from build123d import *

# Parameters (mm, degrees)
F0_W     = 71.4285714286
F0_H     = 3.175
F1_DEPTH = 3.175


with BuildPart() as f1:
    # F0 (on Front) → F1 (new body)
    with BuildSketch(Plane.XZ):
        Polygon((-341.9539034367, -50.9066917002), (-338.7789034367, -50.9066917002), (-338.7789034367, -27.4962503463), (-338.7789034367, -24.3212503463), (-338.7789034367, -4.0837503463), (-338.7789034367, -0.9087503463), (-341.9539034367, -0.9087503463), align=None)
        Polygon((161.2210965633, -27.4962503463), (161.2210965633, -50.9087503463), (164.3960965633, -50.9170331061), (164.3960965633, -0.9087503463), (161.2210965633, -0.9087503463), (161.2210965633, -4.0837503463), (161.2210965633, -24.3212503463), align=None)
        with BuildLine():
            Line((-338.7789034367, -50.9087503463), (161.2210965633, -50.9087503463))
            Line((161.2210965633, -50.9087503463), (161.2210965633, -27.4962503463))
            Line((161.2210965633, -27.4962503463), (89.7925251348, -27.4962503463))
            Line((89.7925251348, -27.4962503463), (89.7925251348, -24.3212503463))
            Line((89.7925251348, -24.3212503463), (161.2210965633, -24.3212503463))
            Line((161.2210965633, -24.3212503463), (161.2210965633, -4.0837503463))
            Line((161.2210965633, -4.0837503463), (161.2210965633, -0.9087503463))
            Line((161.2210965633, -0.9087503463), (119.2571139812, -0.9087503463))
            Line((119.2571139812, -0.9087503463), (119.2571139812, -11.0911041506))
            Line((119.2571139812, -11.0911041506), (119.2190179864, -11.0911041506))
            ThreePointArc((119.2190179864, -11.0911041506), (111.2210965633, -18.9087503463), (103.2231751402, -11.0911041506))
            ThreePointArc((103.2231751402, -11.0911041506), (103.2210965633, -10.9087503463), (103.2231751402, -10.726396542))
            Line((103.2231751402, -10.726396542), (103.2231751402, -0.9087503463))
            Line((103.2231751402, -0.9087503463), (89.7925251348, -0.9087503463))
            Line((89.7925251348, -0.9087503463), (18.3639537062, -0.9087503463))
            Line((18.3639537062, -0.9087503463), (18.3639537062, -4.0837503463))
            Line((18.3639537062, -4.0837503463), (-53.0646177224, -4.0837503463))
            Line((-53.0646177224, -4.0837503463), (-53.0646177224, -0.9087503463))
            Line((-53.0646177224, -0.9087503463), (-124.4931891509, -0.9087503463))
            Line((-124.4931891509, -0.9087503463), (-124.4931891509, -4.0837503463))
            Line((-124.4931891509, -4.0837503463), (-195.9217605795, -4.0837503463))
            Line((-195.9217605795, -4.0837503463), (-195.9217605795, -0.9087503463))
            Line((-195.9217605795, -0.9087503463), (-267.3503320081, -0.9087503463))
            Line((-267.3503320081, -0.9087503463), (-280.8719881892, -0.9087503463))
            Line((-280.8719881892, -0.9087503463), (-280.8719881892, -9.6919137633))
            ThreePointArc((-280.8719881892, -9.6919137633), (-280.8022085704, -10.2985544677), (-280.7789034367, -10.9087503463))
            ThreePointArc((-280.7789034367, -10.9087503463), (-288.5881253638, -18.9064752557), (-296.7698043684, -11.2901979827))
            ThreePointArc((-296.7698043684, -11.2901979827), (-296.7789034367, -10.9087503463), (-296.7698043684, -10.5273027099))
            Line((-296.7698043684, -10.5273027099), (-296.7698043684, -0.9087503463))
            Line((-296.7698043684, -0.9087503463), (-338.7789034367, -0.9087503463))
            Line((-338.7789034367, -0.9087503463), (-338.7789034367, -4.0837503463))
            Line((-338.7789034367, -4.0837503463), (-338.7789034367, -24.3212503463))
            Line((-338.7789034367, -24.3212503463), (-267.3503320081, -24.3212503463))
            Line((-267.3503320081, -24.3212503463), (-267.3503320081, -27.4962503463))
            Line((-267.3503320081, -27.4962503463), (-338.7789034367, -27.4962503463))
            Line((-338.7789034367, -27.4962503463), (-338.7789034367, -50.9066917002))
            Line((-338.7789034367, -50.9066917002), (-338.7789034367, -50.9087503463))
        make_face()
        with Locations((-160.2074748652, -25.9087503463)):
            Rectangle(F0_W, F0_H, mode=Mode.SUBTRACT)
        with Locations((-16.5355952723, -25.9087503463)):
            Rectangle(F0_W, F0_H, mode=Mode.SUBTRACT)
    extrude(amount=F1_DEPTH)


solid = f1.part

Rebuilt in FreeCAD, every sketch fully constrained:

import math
import FreeCAD as App
import Part
import Sketcher
from FreeCAD import Vector
Q = App.Units.Quantity

doc = App.newDocument("Part")
body = doc.addObject("PartDesign::Body", "Body")

# Sketch on XZ plane
sketch1 = doc.addObject("Sketcher::SketchObject", "Sketch")
body.addObject(sketch1)
sketch1.AttachmentSupport = (doc.XZ_Plane, [""])
sketch1.MapMode = "FlatFace"
sketch1.addGeometry([
    Part.LineSegment(Vector(-341.9539, -50.9067, 0), Vector(-338.7789, -50.9067, 0)),  # 0
    Part.LineSegment(Vector(-338.7789, -50.9067, 0), Vector(-338.7789, -50.9088, 0)),  # 1
    Part.LineSegment(Vector(-338.7789, -50.9088, 0), Vector(161.2211, -50.9088, 0)),  # 2
    Part.LineSegment(Vector(161.2211, -50.9088, 0), Vector(164.3961, -50.917, 0)),  # 3
    Part.LineSegment(Vector(164.3961, -50.917, 0), Vector(164.3961, -0.9088, 0)),  # 4
    Part.LineSegment(Vector(164.3961, -0.9088, 0), Vector(119.2571, -0.9088, 0)),  # 5
    Part.LineSegment(Vector(119.2571, -0.9088, 0), Vector(119.2571, -11.0911, 0)),  # 6
    Part.LineSegment(Vector(119.2571, -11.0911, 0), Vector(119.219, -11.0911, 0)),  # 7
    Part.ArcOfCircle(Part.Circle(Vector(111.2211, -10.9088, 0), Vector(0, 0, 1), 8), math.radians(-179), math.radians(-1)),  # 8
    Part.ArcOfCircle(Part.Circle(Vector(111.2211, -10.9088, 0), Vector(0, 0, 1), 8), math.radians(178.69), math.radians(181.31)),  # 9
    Part.LineSegment(Vector(103.2232, -10.7264, 0), Vector(103.2232, -0.9088, 0)),  # 10
    Part.LineSegment(Vector(103.2232, -0.9088, 0), Vector(18.364, -0.9088, 0)),  # 11
    Part.LineSegment(Vector(18.364, -0.9088, 0), Vector(18.364, -4.0838, 0)),  # 12
    Part.LineSegment(Vector(18.364, -4.0838, 0), Vector(-53.0646, -4.0838, 0)),  # 13
    Part.LineSegment(Vector(-53.0646, -4.0838, 0), Vector(-53.0646, -0.9088, 0)),  # 14
    Part.LineSegment(Vector(-53.0646, -0.9088, 0), Vector(-124.4932, -0.9088, 0)),  # 15
    Part.LineSegment(Vector(-124.4932, -0.9088, 0), Vector(-124.4932, -4.0838, 0)),  # 16
    Part.LineSegment(Vector(-124.4932, -4.0838, 0), Vector(-195.9218, -4.0838, 0)),  # 17
    Part.LineSegment(Vector(-195.9218, -4.0838, 0), Vector(-195.9218, -0.9088, 0)),  # 18
    Part.LineSegment(Vector(-195.9218, -0.9088, 0), Vector(-280.872, -0.9088, 0)),  # 19
    Part.LineSegment(Vector(-280.872, -0.9088, 0), Vector(-280.872, -9.6919, 0)),  # 20
    Part.ArcOfCircle(Part.Circle(Vector(-288.7789, -10.9088, 0), Vector(0, 0, 1), 8), math.radians(0), math.radians(8.75)),  # 21
    Part.ArcOfCircle(Part.Circle(Vector(-288.7789, -10.9088, 0), Vector(0, 0, 1), 8), math.radians(-177), math.radians(0)),  # 22
    Part.ArcOfCircle(Part.Circle(Vector(-288.7789, -10.9088, 0), Vector(0, 0, 1), 8), math.radians(177.27), math.radians(182.73)),  # 23
    Part.LineSegment(Vector(-296.7698, -10.5273, 0), Vector(-296.7698, -0.9088, 0)),  # 24
    Part.LineSegment(Vector(-296.7698, -0.9088, 0), Vector(-341.9539, -0.9088, 0)),  # 25
    Part.LineSegment(Vector(-341.9539, -0.9088, 0), Vector(-341.9539, -50.9067, 0)),  # 26
    Part.LineSegment(Vector(-338.7789, -27.4963, 0), Vector(-338.7789, -24.3213, 0)),  # 27
    Part.LineSegment(Vector(-338.7789, -24.3213, 0), Vector(-267.3503, -24.3213, 0)),  # 28
    Part.LineSegment(Vector(-267.3503, -24.3213, 0), Vector(-267.3503, -27.4963, 0)),  # 29
    Part.LineSegment(Vector(-267.3503, -27.4963, 0), Vector(-338.7789, -27.4963, 0)),  # 30
    Part.LineSegment(Vector(-124.4932, -27.4963, 0), Vector(-195.9218, -27.4963, 0)),  # 31
    Part.LineSegment(Vector(-195.9218, -27.4963, 0), Vector(-195.9218, -24.3213, 0)),  # 32
    Part.LineSegment(Vector(-195.9218, -24.3213, 0), Vector(-124.4932, -24.3213, 0)),  # 33
    Part.LineSegment(Vector(-124.4932, -24.3213, 0), Vector(-124.4932, -27.4963, 0)),  # 34
    Part.LineSegment(Vector(19.1787, -27.4963, 0), Vector(-52.2499, -27.4963, 0)),  # 35
    Part.LineSegment(Vector(-52.2499, -27.4963, 0), Vector(-52.2499, -24.3213, 0)),  # 36
    Part.LineSegment(Vector(-52.2499, -24.3213, 0), Vector(19.1787, -24.3213, 0)),  # 37
    Part.LineSegment(Vector(19.1787, -24.3213, 0), Vector(19.1787, -27.4963, 0)),  # 38
    Part.LineSegment(Vector(161.2211, -27.4963, 0), Vector(89.7925, -27.4963, 0)),  # 39
    Part.LineSegment(Vector(89.7925, -27.4963, 0), Vector(89.7925, -24.3213, 0)),  # 40
    Part.LineSegment(Vector(89.7925, -24.3213, 0), Vector(161.2211, -24.3213, 0)),  # 41
    Part.LineSegment(Vector(161.2211, -24.3213, 0), Vector(161.2211, -27.4963, 0)),  # 42
], False)
sketch1.addConstraint([
    Sketcher.Constraint("Coincident", 0, 2, 1, 1),
    Sketcher.Constraint("Coincident", 1, 2, 2, 1),
    Sketcher.Constraint("Coincident", 2, 2, 3, 1),
    Sketcher.Constraint("Coincident", 3, 2, 4, 1),
    Sketcher.Constraint("Coincident", 4, 2, 5, 1),
    Sketcher.Constraint("Coincident", 5, 2, 6, 1),
    Sketcher.Constraint("Coincident", 6, 2, 7, 1),
    Sketcher.Constraint("Coincident", 7, 2, 8, 2),
    Sketcher.Constraint("Tangent", 8, 1, 9, 2),
    Sketcher.Constraint("Coincident", 9, 1, 10, 1),
    Sketcher.Constraint("Coincident", 10, 2, 11, 1),
    Sketcher.Constraint("Coincident", 11, 2, 12, 1),
    Sketcher.Constraint("Coincident", 12, 2, 13, 1),
    Sketcher.Constraint("Coincident", 13, 2, 14, 1),
    Sketcher.Constraint("Coincident", 14, 2, 15, 1),
    Sketcher.Constraint("Coincident", 15, 2, 16, 1),
    Sketcher.Constraint("Coincident", 16, 2, 17, 1),
    Sketcher.Constraint("Coincident", 17, 2, 18, 1),
    Sketcher.Constraint("Coincident", 18, 2, 19, 1),
    Sketcher.Constraint("Coincident", 19, 2, 20, 1),
    Sketcher.Constraint("Coincident", 20, 2, 21, 2),
    Sketcher.Constraint("Tangent", 21, 1, 22, 2),
    Sketcher.Constraint("Tangent", 22, 1, 23, 2),
    Sketcher.Constraint("Coincident", 23, 1, 24, 1),
    Sketcher.Constraint("Coincident", 24, 2, 25, 1),
    Sketcher.Constraint("Coincident", 25, 2, 26, 1),
    Sketcher.Constraint("Coincident", 26, 2, 0, 1),
    Sketcher.Constraint("Coincident", 27, 2, 28, 1),
    Sketcher.Constraint("Coincident", 28, 2, 29, 1),
    Sketcher.Constraint("Coincident", 29, 2, 30, 1),
    Sketcher.Constraint("Coincident", 30, 2, 27, 1),
    Sketcher.Constraint("Coincident", 31, 2, 32, 1),
    Sketcher.Constraint("Coincident", 32, 2, 33, 1),
    Sketcher.Constraint("Coincident", 33, 2, 34, 1),
    Sketcher.Constraint("Coincident", 34, 2, 31, 1),
    Sketcher.Constraint("Coincident", 35, 2, 36, 1),
    Sketcher.Constraint("Coincident", 36, 2, 37, 1),
    Sketcher.Constraint("Coincident", 37, 2, 38, 1),
    Sketcher.Constraint("Coincident", 38, 2, 35, 1),
    Sketcher.Constraint("Coincident", 39, 2, 40, 1),
    Sketcher.Constraint("Coincident", 40, 2, 41, 1),
    Sketcher.Constraint("Coincident", 41, 2, 42, 1),
    Sketcher.Constraint("Coincident", 42, 2, 39, 1),
    Sketcher.Constraint("Horizontal", 0),
    Sketcher.Constraint("Vertical", 1),
    Sketcher.Constraint("Horizontal", 2),
    Sketcher.Constraint("Vertical", 4),
    Sketcher.Constraint("Horizontal", 5),
    Sketcher.Constraint("Vertical", 6),
    Sketcher.Constraint("Horizontal", 7),
    Sketcher.Constraint("Vertical", 10),
    Sketcher.Constraint("Horizontal", 11),
    Sketcher.Constraint("Vertical", 12),
    Sketcher.Constraint("Horizontal", 13),
    Sketcher.Constraint("Vertical", 14),
    Sketcher.Constraint("Horizontal", 15),
    Sketcher.Constraint("Vertical", 16),
    Sketcher.Constraint("Horizontal", 17),
    Sketcher.Constraint("Vertical", 18),
    Sketcher.Constraint("Horizontal", 19),
    Sketcher.Constraint("Vertical", 20),
    Sketcher.Constraint("Vertical", 24),
    Sketcher.Constraint("Horizontal", 25),
    Sketcher.Constraint("Vertical", 26),
    Sketcher.Constraint("Vertical", 27),
    Sketcher.Constraint("Horizontal", 28),
    Sketcher.Constraint("Vertical", 29),
    Sketcher.Constraint("Horizontal", 30),
    Sketcher.Constraint("Horizontal", 31),
    Sketcher.Constraint("Vertical", 32),
    Sketcher.Constraint("Horizontal", 33),
    Sketcher.Constraint("Vertical", 34),
    Sketcher.Constraint("Horizontal", 35),
    Sketcher.Constraint("Vertical", 36),
    Sketcher.Constraint("Horizontal", 37),
    Sketcher.Constraint("Vertical", 38),
    Sketcher.Constraint("Horizontal", 39),
    Sketcher.Constraint("Vertical", 40),
    Sketcher.Constraint("Horizontal", 41),
    Sketcher.Constraint("Vertical", 42),
    Sketcher.Constraint("Coincident", 23, 3, 21, 3),
    Sketcher.Constraint("Equal", 8, 9),
    Sketcher.Constraint("Equal", 9, 21),
    Sketcher.Constraint("Horizontal", 9, 3, 21, 3),
    Sketcher.Constraint("Horizontal", 7, 2, 8, 1),
    Sketcher.Constraint("Horizontal", 5, 2, 10, 2),
    Sketcher.Constraint("Horizontal", 11, 2, 14, 2),
    Sketcher.Constraint("Horizontal", 13, 2, 16, 2),
    Sketcher.Constraint("Horizontal", 15, 2, 18, 2),
    Sketcher.Constraint("Horizontal", 23, 3, 21, 1),
    Sketcher.Constraint("Horizontal", 19, 2, 24, 2),
    Sketcher.Constraint("Horizontal", 30, 2, 31, 2),
    Sketcher.Constraint("Horizontal", 28, 2, 32, 2),
    Sketcher.Constraint("Horizontal", 34, 2, 35, 2),
    Sketcher.Constraint("Horizontal", 33, 2, 36, 2),
    Sketcher.Constraint("Horizontal", 38, 2, 39, 2),
    Sketcher.Constraint("Horizontal", 37, 2, 40, 2),
    Sketcher.Constraint("Vertical", 8, 1, 9, 1),
    Sketcher.Constraint("Vertical", 22, 1, 23, 1),
    Sketcher.Constraint("Vertical", 1, 2, 27, 2),
    Sketcher.Constraint("Vertical", 18, 2, 31, 2),
    Sketcher.Constraint("Vertical", 16, 2, 33, 2),
    Sketcher.Constraint("Vertical", 2, 2, 41, 2),
    Sketcher.Constraint("Equal", 13, 15),
    Sketcher.Constraint("Equal", 15, 17),
    Sketcher.Constraint("Equal", 17, 28),
    Sketcher.Constraint("Equal", 33, 35),
    Sketcher.Constraint("Equal", 37, 39),
    Sketcher.Constraint("Equal", 0, 12),
    Sketcher.Constraint("Equal", 18, 27),
    Sketcher.Constraint("Radius", 8, Q("8 mm")),
    Sketcher.Constraint("DistanceX", 2, 1, 2, 2, Q("500 mm")),
    Sketcher.Constraint("DistanceX", 21, 3, 8, 3, Q("400 mm")),
    Sketcher.Constraint("DistanceX", 0, 2, 23, 3, Q("50 mm")),
    Sketcher.Constraint("DistanceY", 1, 2, 23, 3, Q("40 mm")),
    Sketcher.Constraint("DistanceY", 2, 2, 4, 2, Q("50 mm")),
    Sketcher.Constraint("DistanceX", 0, 1, 0, 2, Q("3.175 mm")),
    Sketcher.Constraint("DistanceX", 25, 2, 25, 1, Q("45.184099 mm")),
    Sketcher.Constraint("DistanceX", 2, 2, 3, 2, Q("3.175 mm")),
    Sketcher.Constraint("DistanceX", 11, 2, 11, 1, Q("84.859221 mm")),
    Sketcher.Constraint("DistanceX", 13, 2, 13, 1, Q("71.428571 mm")),
    Sketcher.Constraint("DistanceY", 1, 2, 1, 1, Q("0.002059 mm")),
    Sketcher.Constraint("DistanceY", 27, 2, 25, 2, Q("23.4125 mm")),
    Sketcher.Constraint("DistanceX", 5, 2, 5, 1, Q("45.138983 mm")),
    Sketcher.Constraint("DistanceX", 7, 2, 7, 1, Q("0.038096 mm")),
    Sketcher.Constraint("DistanceX", 19, 2, 19, 1, Q("84.950228 mm")),
    Sketcher.Constraint("DistanceY", 4, 1, 4, 2, Q("50.008283 mm")),
    Sketcher.Constraint("DistanceY", 8, 3, -1, 1, Q("10.90875 mm")),
    Sketcher.Constraint("DistanceX", 15, 2, -1, 1, Q("124.493189 mm")),
    Sketcher.Constraint("DistanceX", 35, 2, -1, 1, Q("52.249881 mm")),
])
pad1 = doc.addObject("PartDesign::Pad", "Pad")
body.addObject(pad1)
pad1.Profile = sketch1
pad1.Length = 3.175

doc.recompute()
